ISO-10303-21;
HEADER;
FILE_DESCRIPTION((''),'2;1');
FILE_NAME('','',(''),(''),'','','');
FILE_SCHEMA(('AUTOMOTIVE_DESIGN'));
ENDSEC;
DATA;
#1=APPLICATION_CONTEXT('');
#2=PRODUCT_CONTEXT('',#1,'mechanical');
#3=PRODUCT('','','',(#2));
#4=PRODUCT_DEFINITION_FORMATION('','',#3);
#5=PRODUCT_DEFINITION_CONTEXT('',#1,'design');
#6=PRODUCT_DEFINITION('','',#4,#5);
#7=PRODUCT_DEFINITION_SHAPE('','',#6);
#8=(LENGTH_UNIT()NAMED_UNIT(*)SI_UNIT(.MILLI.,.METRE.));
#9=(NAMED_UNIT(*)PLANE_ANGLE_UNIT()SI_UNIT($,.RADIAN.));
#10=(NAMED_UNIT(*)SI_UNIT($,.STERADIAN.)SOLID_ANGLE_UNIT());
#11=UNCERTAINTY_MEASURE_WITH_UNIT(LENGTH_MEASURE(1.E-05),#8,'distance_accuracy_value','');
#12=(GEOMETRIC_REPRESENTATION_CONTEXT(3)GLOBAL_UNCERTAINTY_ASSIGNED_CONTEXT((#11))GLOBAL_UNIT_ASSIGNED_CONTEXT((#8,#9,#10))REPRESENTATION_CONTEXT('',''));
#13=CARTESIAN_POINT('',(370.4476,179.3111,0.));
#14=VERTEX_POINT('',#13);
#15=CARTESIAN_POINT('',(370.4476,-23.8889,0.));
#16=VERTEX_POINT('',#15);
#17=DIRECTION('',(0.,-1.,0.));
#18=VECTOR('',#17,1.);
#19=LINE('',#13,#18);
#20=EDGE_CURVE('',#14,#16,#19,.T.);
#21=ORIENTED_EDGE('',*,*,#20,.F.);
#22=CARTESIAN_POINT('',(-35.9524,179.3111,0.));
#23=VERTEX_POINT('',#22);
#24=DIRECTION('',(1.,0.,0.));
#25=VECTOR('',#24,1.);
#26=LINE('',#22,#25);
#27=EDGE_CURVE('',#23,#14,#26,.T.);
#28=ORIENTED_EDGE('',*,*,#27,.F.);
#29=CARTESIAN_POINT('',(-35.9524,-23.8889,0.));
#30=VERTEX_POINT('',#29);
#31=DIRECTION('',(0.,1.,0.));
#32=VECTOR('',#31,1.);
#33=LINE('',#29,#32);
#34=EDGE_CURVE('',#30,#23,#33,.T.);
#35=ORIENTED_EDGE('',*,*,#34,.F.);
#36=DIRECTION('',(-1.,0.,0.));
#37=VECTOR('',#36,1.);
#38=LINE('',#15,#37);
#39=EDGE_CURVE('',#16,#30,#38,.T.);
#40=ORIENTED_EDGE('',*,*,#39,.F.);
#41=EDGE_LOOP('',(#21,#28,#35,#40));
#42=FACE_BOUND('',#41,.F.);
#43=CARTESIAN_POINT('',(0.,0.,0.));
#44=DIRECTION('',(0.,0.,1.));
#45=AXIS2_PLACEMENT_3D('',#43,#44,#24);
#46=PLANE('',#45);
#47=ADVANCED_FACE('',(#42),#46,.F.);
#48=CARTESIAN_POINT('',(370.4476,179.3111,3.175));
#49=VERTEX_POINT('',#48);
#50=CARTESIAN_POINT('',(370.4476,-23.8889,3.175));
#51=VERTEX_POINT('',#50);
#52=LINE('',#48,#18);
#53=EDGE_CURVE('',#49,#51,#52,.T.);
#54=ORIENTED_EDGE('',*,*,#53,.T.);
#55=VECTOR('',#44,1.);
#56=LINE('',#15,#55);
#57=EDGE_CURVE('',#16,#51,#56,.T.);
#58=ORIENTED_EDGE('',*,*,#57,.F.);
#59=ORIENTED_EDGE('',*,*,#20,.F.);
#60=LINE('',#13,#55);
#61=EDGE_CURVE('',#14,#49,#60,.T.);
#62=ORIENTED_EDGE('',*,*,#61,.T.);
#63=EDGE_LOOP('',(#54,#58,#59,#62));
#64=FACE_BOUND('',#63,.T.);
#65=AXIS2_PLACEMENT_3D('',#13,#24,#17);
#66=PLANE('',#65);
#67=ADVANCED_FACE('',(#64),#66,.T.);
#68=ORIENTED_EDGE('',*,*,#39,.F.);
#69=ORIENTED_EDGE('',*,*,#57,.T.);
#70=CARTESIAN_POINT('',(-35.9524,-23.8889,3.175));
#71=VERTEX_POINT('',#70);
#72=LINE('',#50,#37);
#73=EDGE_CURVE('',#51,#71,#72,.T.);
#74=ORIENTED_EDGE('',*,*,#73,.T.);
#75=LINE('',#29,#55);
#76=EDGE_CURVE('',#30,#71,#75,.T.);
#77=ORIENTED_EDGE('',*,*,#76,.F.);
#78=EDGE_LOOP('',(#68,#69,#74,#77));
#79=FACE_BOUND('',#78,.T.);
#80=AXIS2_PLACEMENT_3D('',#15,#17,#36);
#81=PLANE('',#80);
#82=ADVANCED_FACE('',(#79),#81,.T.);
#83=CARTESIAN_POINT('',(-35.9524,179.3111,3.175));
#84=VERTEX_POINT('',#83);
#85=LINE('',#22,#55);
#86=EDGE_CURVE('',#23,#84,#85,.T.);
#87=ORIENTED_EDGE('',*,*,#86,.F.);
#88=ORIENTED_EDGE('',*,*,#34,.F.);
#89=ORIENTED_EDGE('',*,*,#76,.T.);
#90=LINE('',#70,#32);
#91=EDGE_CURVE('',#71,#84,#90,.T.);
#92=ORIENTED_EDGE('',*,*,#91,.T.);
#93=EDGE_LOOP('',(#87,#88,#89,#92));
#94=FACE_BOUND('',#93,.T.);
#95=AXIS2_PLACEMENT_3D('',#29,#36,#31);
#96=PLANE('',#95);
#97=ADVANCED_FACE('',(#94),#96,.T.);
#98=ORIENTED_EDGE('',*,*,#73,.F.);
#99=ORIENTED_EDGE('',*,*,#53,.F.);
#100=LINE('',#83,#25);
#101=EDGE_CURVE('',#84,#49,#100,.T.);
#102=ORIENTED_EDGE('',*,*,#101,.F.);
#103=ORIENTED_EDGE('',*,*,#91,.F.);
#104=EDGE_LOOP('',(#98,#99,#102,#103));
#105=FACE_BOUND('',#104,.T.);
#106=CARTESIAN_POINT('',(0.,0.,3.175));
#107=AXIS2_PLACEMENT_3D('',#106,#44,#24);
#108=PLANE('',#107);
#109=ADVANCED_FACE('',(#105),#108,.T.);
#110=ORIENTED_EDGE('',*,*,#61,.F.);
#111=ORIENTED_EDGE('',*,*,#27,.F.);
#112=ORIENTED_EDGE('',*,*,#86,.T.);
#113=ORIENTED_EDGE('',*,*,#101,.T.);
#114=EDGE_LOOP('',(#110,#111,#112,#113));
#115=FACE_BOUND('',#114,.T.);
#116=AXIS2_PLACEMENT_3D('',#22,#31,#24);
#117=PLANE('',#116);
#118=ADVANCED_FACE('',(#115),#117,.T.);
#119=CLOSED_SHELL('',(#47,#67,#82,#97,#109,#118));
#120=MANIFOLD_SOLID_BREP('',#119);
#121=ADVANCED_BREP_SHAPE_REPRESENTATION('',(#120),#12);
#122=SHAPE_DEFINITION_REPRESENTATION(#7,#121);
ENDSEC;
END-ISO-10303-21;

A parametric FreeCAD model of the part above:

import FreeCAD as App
import Part
import Sketcher
from FreeCAD import Vector
Q = App.Units.Quantity

doc = App.newDocument("Part")
body = doc.addObject("PartDesign::Body", "Body")

# Sketch on XY plane
sketch1 = doc.addObject("Sketcher::SketchObject", "Sketch")
body.addObject(sketch1)
sketch1.AttachmentSupport = (doc.XY_Plane, [""])
sketch1.MapMode = "FlatFace"
sketch1.addGeometry([
    Part.LineSegment(Vector(370, 179, 0), Vector(-36, 179, 0)),
    Part.LineSegment(Vector(-36, 179, 0), Vector(-36, -24, 0)),
    Part.LineSegment(Vector(-36, -24, 0), Vector(370, -24, 0)),
    Part.LineSegment(Vector(370, -24, 0), Vector(370, 179, 0)),
], False)
sketch1.addConstraint([
    Sketcher.Constraint("Coincident", 0, 2, 1, 1),
    Sketcher.Constraint("Coincident", 1, 2, 2, 1),
    Sketcher.Constraint("Coincident", 2, 2, 3, 1),
    Sketcher.Constraint("Coincident", 3, 2, 0, 1),
    Sketcher.Constraint("Horizontal", 0),
    Sketcher.Constraint("Vertical", 1),
    Sketcher.Constraint("Horizontal", 2),
    Sketcher.Constraint("Vertical", 3),
    Sketcher.Constraint("DistanceX", 0, 2, 0, 1, Q("16 in")),
    Sketcher.Constraint("DistanceY", 1, 2, 1, 1, Q("8 in")),
    Sketcher.Constraint("DistanceY", -1, 1, 0, 2, Q("7.0595 in")),
    Sketcher.Constraint("DistanceX", 0, 2, -1, 1, Q("35.9524 mm")),
])
pad1 = doc.addObject("PartDesign::Pad", "Pad")
body.addObject(pad1)
pad1.Profile = sketch1
pad1.Length = Q("0.125 in")

doc.recompute()
